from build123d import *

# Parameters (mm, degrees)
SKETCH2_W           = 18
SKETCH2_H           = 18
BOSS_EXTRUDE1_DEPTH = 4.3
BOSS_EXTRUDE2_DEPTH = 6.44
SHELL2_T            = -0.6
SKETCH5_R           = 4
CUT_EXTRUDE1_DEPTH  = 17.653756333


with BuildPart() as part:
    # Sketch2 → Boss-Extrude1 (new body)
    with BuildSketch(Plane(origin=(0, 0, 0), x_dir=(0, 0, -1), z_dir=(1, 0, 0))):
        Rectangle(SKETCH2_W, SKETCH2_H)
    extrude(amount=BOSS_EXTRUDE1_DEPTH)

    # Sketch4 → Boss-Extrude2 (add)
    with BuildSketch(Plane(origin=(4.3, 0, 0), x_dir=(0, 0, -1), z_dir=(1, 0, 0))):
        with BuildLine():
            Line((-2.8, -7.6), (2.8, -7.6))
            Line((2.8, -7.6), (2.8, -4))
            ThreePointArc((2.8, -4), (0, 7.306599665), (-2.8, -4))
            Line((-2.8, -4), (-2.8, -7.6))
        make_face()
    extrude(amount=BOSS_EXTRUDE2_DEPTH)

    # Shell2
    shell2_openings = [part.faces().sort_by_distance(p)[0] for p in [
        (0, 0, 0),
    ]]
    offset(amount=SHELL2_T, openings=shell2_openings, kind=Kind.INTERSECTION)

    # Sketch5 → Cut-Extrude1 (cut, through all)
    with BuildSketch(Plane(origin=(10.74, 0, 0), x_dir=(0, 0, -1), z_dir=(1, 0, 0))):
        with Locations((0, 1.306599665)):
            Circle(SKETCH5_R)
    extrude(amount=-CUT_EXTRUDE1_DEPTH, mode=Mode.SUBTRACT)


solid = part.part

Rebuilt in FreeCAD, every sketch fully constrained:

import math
import FreeCAD as App
import Part
import Sketcher


def faces_at(feature, points):
    """Names of the faces that lie closest to the given points."""
    faces = feature.Shape.Faces
    near = lambda p: min(range(len(faces)), key=lambda i: faces[i].distToShape(Part.Vertex(*p))[0])
    return sorted({f"Face{near(p) + 1}" for p in points})

doc = App.newDocument("Part")
body = doc.addObject("PartDesign::Body", "Body")

# Sketch on YZ plane
sketch1 = doc.addObject("Sketcher::SketchObject", "Sketch")
body.addObject(sketch1)
sketch1.AttachmentSupport = (doc.YZ_Plane, [""])
sketch1.MapMode = "FlatFace"
sketch1.addGeometry(Part.LineSegment(App.Vector(9, 9, 0), App.Vector(-9, 9, 0)), False)
sketch1.addGeometry(Part.LineSegment(App.Vector(-9, 9, 0), App.Vector(-9, -9, 0)), False)
sketch1.addGeometry(Part.LineSegment(App.Vector(-9, -9, 0), App.Vector(9, -9, 0)), False)
sketch1.addGeometry(Part.LineSegment(App.Vector(9, -9, 0), App.Vector(9, 9, 0)), False)
sketch1.addConstraint(Sketcher.Constraint("Coincident", 0, 2, 1, 1))
sketch1.addConstraint(Sketcher.Constraint("Coincident", 1, 2, 2, 1))
sketch1.addConstraint(Sketcher.Constraint("Coincident", 2, 2, 3, 1))
sketch1.addConstraint(Sketcher.Constraint("Coincident", 3, 2, 0, 1))
sketch1.addConstraint(Sketcher.Constraint("Horizontal", 0))
sketch1.addConstraint(Sketcher.Constraint("Vertical", 1))
sketch1.addConstraint(Sketcher.Constraint("Horizontal", 2))
sketch1.addConstraint(Sketcher.Constraint("Vertical", 3))
sketch1.addConstraint(Sketcher.Constraint("Symmetric", 0, 2, 2, 2, -1, 1))
sketch1.addConstraint(Sketcher.Constraint("Equal", 2, 1))
sketch1.addConstraint(Sketcher.Constraint("DistanceX", 0, 2, 0, 1, 18.0))
pad1 = doc.addObject("PartDesign::Pad", "Pad")
body.addObject(pad1)
pad1.Profile = sketch1
pad1.Length = 4.3

# Sketch on YZ plane
sketch2 = doc.addObject("Sketcher::SketchObject", "Sketch001")
body.addObject(sketch2)
sketch2.AttachmentSupport = (doc.YZ_Plane, [""])
sketch2.MapMode = "FlatFace"
sketch2.AttachmentOffset = App.Placement(App.Vector(0, 0, 4.3), App.Rotation())
sketch2.addGeometry(Part.LineSegment(App.Vector(-7.6, 2.8, 0), App.Vector(-7.6, -2.8, 0)), False)
sketch2.addGeometry(Part.LineSegment(App.Vector(-7.6, -2.8, 0), App.Vector(-4, -2.8, 0)), False)
sketch2.addGeometry(Part.ArcOfCircle(Part.Circle(App.Vector(1.3, 0, 0), App.Vector(0, 0, 1), 6), math.radians(-152), math.radians(152)), False)
sketch2.addGeometry(Part.LineSegment(App.Vector(-4, 2.8, 0), App.Vector(-7.6, 2.8, 0)), False)
sketch2.addConstraint(Sketcher.Constraint("Coincident", 0, 2, 1, 1))
sketch2.addConstraint(Sketcher.Constraint("Coincident", 1, 2, 2, 1))
sketch2.addConstraint(Sketcher.Constraint("Coincident", 2, 2, 3, 1))
sketch2.addConstraint(Sketcher.Constraint("Coincident", 3, 2, 0, 1))
sketch2.addConstraint(Sketcher.Constraint("Vertical", 0))
sketch2.addConstraint(Sketcher.Constraint("Horizontal", 1))
sketch2.addConstraint(Sketcher.Constraint("Horizontal", 3))
sketch2.addConstraint(Sketcher.Constraint("Symmetric", 1, 2, 2, 2, -1))
sketch2.addConstraint(Sketcher.Constraint("Radius", 2, 6.0))
sketch2.addConstraint(Sketcher.Constraint("DistanceX", 1, 1, 1, 2, 3.6))
sketch2.addConstraint(Sketcher.Constraint("DistanceY", 0, 2, 0, 1, 5.6))
sketch2.addConstraint(Sketcher.Constraint("DistanceX", 1, 2, -1, 1, 4.0))
pad2 = doc.addObject("PartDesign::Pad", "Pad001")
body.addObject(pad2)
pad2.Profile = sketch2
pad2.Length = 6.44
doc.recompute()

thickness = doc.addObject("PartDesign::Thickness", "Thickness")
body.addObject(thickness)
thickness.Base = (pad2, faces_at(pad2, [(0, 0, 0)]))
thickness.Value = 0.6
thickness.Reversed = True
thickness.Join = "Intersection"

# Sketch on YZ plane
sketch3 = doc.addObject("Sketcher::SketchObject", "Sketch002")
body.addObject(sketch3)
sketch3.AttachmentSupport = (doc.YZ_Plane, [""])
sketch3.MapMode = "FlatFace"
sketch3.AttachmentOffset = App.Placement(App.Vector(0, 0, 10.74), App.Rotation())
sketch3.addGeometry(Part.Circle(App.Vector(1.3, 0, 0), App.Vector(0, 0, 1), 4), False)
sketch3.addConstraint(Sketcher.Constraint("PointOnObject", 0, 3, -1))
sketch3.addConstraint(Sketcher.Constraint("Diameter", 0, 8.0))
sketch3.addConstraint(Sketcher.Constraint("DistanceX", -1, 1, 0, 3, 1.3066))
pocket1 = doc.addObject("PartDesign::Pocket", "Pocket")
body.addObject(pocket1)
pocket1.Profile = sketch3
pocket1.Type = "ThroughAll"

doc.recompute()
